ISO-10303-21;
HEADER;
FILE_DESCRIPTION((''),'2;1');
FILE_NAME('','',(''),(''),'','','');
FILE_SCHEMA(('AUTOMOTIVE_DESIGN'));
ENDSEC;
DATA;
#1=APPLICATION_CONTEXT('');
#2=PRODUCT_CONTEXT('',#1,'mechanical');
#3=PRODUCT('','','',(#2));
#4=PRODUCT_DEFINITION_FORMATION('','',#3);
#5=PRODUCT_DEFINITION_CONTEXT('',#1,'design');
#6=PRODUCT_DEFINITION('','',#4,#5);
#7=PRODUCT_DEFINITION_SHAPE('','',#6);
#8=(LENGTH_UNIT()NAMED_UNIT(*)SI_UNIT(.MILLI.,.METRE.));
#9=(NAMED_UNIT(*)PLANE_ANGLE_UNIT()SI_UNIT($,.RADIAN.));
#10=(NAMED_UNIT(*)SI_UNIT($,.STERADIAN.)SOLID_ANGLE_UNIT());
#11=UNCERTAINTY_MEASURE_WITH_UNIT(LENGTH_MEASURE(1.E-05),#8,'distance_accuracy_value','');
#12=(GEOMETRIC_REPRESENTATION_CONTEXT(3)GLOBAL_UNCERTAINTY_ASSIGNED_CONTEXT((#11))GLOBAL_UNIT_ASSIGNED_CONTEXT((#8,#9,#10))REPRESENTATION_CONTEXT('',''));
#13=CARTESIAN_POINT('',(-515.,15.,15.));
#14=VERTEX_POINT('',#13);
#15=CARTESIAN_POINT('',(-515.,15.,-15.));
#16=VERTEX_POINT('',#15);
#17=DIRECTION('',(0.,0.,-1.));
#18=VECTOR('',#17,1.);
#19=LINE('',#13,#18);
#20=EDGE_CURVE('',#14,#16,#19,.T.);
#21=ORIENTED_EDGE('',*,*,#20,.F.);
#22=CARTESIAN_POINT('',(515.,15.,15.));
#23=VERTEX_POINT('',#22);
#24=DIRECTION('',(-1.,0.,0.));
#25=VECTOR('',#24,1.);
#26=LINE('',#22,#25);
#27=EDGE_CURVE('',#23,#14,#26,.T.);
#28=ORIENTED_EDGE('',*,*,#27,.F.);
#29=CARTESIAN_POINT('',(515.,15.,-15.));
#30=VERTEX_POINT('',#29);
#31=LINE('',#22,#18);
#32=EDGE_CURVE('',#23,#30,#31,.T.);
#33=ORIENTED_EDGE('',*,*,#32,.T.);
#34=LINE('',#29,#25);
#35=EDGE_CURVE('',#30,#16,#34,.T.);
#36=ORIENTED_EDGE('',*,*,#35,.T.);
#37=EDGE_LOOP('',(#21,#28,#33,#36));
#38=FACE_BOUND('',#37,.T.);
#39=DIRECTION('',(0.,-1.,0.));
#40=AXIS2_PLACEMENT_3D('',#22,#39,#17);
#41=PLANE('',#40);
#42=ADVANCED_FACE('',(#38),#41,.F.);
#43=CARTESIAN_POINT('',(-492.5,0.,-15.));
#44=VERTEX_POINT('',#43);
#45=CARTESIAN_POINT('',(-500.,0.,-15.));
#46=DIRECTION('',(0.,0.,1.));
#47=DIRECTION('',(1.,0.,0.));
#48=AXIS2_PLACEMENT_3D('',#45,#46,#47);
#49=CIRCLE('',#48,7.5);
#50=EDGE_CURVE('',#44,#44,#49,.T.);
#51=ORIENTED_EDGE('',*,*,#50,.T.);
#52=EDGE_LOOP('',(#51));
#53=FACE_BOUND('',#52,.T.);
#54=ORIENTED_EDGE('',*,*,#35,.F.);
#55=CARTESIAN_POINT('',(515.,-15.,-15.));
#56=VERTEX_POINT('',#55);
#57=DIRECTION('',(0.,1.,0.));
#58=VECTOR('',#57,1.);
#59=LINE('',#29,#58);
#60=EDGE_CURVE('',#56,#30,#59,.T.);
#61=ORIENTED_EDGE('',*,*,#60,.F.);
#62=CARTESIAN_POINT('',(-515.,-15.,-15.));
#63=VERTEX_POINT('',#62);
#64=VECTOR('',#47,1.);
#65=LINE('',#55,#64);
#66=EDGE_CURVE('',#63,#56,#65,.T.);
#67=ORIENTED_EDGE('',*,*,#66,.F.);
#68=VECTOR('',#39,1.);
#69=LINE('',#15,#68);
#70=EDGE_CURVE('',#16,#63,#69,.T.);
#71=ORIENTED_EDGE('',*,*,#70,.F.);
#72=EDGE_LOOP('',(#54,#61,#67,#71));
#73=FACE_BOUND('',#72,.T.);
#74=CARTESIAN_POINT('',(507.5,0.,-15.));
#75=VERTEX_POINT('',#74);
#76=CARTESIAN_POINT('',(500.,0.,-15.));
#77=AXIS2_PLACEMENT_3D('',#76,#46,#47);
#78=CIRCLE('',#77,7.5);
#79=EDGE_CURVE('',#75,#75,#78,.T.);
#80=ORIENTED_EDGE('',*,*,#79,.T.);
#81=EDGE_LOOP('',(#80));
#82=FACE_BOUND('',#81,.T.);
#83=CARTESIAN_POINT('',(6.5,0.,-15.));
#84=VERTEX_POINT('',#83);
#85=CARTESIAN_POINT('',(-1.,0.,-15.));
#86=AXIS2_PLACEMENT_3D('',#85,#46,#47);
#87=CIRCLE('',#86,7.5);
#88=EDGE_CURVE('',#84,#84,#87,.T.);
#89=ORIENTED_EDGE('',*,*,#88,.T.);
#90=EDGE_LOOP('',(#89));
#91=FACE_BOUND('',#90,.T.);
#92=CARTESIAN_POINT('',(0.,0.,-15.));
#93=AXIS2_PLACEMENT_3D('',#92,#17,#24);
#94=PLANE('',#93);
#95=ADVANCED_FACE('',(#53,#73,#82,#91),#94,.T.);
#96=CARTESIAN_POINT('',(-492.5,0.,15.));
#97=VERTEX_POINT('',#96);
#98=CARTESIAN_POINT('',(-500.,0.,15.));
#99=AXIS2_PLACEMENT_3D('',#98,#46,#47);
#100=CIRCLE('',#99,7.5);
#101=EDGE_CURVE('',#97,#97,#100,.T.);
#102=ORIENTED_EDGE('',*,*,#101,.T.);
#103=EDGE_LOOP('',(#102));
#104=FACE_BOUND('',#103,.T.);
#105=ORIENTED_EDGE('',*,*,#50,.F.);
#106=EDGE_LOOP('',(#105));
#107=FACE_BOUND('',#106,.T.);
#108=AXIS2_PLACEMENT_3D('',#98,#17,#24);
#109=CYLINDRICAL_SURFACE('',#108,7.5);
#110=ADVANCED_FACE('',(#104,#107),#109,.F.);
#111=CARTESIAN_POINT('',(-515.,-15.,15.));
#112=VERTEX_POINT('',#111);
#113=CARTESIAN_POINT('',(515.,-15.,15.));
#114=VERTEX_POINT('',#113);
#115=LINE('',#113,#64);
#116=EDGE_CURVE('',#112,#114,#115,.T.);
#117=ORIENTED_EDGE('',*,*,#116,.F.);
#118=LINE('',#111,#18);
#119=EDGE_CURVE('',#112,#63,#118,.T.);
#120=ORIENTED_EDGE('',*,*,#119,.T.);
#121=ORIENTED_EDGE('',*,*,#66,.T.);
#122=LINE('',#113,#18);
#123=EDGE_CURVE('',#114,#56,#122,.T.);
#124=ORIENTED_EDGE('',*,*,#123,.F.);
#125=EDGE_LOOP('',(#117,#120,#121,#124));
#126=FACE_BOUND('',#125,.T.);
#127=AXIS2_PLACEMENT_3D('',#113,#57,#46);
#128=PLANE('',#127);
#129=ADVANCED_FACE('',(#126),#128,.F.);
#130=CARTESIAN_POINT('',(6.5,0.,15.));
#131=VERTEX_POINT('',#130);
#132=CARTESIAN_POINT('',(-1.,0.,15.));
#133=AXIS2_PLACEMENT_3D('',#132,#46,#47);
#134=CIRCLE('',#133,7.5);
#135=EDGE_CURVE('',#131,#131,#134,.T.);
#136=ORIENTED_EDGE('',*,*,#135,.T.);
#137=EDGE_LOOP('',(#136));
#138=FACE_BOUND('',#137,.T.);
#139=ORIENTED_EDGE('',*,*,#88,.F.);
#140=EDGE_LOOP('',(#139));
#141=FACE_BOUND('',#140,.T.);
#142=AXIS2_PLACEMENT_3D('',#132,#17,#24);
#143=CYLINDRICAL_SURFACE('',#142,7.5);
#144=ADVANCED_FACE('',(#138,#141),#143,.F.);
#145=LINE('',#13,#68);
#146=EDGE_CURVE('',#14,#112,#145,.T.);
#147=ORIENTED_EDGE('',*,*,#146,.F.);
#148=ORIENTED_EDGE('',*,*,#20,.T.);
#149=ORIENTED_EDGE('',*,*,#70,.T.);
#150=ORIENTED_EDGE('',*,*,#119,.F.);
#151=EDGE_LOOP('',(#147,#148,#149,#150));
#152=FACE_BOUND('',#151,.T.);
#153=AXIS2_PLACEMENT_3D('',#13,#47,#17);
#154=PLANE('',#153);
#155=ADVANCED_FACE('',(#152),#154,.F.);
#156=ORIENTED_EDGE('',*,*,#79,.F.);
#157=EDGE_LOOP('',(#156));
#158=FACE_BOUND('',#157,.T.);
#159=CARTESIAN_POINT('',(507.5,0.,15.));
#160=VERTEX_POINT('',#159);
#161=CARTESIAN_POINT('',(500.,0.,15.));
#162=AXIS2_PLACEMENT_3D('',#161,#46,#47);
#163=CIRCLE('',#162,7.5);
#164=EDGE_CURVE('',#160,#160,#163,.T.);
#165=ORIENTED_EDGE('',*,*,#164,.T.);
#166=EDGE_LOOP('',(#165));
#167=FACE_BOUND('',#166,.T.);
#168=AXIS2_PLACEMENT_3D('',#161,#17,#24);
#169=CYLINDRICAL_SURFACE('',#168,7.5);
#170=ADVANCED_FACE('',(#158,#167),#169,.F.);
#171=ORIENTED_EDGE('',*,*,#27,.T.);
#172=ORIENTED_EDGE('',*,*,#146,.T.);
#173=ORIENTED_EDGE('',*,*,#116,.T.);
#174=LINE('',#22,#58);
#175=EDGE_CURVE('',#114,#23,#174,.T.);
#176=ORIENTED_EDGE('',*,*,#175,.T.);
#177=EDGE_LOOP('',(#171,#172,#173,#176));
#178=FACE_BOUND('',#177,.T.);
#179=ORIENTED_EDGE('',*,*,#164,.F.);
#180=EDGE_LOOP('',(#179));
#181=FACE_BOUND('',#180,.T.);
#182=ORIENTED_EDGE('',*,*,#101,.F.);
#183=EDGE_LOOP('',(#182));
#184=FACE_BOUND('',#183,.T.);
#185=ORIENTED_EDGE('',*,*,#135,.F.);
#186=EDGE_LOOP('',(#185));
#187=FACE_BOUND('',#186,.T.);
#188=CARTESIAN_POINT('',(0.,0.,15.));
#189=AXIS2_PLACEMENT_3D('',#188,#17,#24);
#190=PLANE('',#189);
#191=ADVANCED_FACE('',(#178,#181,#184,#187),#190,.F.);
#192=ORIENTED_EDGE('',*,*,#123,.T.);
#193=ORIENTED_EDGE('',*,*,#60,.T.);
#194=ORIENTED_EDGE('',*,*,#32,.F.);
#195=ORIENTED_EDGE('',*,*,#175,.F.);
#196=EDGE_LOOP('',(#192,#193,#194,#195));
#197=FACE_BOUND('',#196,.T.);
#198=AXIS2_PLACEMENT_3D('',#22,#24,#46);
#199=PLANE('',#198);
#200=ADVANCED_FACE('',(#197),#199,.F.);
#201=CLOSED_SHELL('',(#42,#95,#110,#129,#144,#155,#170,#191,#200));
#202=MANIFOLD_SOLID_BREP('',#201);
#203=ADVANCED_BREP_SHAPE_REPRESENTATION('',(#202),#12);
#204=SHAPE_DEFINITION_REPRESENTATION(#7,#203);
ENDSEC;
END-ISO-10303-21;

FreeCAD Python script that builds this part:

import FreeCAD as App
import Part
import Sketcher

V = App.Vector

doc = App.newDocument("Part")
body = doc.addObject("PartDesign::Body", "Body")

sketch1 = body.newObject("Sketcher::SketchObject", "Sketch")
sketch1.AttachmentSupport = (doc.getObject("XY_Plane"), [""])
sketch1.MapMode = "FlatFace"
sketch1.addGeometry([
    Part.LineSegment(V(-515, 15, 0), V(-515, -15, 0)),
    Part.LineSegment(V(-515, -15, 0), V(515, -15, 0)),
    Part.LineSegment(V(515, -15, 0), V(515, 15, 0)),
    Part.LineSegment(V(515, 15, 0), V(-515, 15, 0)),
    Part.Circle(V(-500, 0, 0), V(0, 0, 1), 8),
    Part.Circle(V(-1, 0, 0), V(0, 0, 1), 8),
    Part.Circle(V(500, 0, 0), V(0, 0, 1), 8),
], False)
sketch1.addConstraint([
    Sketcher.Constraint("Coincident", 0, 2, 1, 1),
    Sketcher.Constraint("Coincident", 1, 2, 2, 1),
    Sketcher.Constraint("Coincident", 2, 2, 3, 1),
    Sketcher.Constraint("Coincident", 3, 2, 0, 1),
    Sketcher.Constraint("Vertical", 0),
    Sketcher.Constraint("Horizontal", 1),
    Sketcher.Constraint("Vertical", 2),
    Sketcher.Constraint("Horizontal", 3),
    Sketcher.Constraint("Equal", 4, 5),
    Sketcher.Constraint("Equal", 5, 6),
    Sketcher.Constraint("Symmetric", 4, 3, 6, 3, -1, 1),
    Sketcher.Constraint("Symmetric", 0, 2, 2, 2, -1, 1),
    Sketcher.Constraint("PointOnObject", 4, 3, -1),
    Sketcher.Constraint("PointOnObject", 5, 3, -1),
    Sketcher.Constraint("Diameter", 4, 15.0),
    Sketcher.Constraint("DistanceX", 1, 1, 1, 2, 1030.0),
    Sketcher.Constraint("DistanceY", 0, 2, 0, 1, 30.0),
    Sketcher.Constraint("DistanceX", 4, 3, -1, 1, 500.0),
    Sketcher.Constraint("DistanceX", 5, 3, -1, 1, 1.0),
])
pad1 = body.newObject("PartDesign::Pad", "Pad")
pad1.Profile = sketch1
pad1.Length = 30
pad1.Midplane = True

doc.recompute()
